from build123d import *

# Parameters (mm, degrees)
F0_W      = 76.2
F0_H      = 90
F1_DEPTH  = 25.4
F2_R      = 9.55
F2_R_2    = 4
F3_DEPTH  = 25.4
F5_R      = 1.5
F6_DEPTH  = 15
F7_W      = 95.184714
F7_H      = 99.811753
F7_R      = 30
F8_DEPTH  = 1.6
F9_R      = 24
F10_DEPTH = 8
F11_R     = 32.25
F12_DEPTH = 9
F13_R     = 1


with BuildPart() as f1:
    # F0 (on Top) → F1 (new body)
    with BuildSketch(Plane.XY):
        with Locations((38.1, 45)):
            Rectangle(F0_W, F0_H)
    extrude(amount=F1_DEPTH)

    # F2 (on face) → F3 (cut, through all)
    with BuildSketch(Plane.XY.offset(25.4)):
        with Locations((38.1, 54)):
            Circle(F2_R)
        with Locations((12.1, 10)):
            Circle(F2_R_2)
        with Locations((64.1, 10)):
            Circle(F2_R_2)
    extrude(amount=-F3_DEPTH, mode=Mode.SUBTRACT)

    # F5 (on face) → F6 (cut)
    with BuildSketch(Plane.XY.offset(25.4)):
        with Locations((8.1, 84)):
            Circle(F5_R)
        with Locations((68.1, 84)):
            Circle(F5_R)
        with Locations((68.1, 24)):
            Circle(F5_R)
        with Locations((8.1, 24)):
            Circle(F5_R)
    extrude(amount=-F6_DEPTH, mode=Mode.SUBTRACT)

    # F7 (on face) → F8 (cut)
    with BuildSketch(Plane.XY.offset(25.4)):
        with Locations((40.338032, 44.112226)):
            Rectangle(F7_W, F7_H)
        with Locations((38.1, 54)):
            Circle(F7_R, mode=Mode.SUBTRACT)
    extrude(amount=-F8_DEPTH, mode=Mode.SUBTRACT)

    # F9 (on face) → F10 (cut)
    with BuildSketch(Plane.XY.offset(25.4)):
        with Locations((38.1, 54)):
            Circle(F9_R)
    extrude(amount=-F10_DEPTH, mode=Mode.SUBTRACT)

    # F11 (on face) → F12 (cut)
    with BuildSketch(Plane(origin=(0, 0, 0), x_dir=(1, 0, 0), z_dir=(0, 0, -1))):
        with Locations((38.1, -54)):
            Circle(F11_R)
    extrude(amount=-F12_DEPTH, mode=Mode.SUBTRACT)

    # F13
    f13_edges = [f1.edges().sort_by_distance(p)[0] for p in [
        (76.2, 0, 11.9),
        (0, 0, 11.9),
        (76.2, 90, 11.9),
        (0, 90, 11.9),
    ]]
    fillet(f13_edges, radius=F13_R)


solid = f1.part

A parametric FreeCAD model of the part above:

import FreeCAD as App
import Part
import Sketcher
from FreeCAD import Vector
Q = App.Units.Quantity


def edges_at(feature, points):
    """Names of the edges that pass closest to the given points."""
    edges = feature.Shape.Edges
    near = lambda p: min(range(len(edges)), key=lambda i: edges[i].distToShape(Part.Vertex(*p))[0])
    return sorted({f"Edge{near(p) + 1}" for p in points})


def add_polygon(sketch, points):
    """Adds a closed chain of lines whose ends are joined by coincident constraints."""
    first, n = sketch.GeometryCount, len(points)
    for a, b in zip(points, points[1:] + points[:1]):
        sketch.addGeometry(Part.LineSegment(App.Vector(*a, 0), App.Vector(*b, 0)), False)
    for i in range(n):
        sketch.addConstraint(Sketcher.Constraint("Coincident", first + i, 2, first + (i + 1) % n, 1))

doc = App.newDocument("Part")
body = doc.addObject("PartDesign::Body", "Body")

sketch1 = doc.addObject("Sketcher::SketchObject", "Sketch")
body.addObject(sketch1)
sketch1.AttachmentSupport = (doc.XY_Plane, [""])
sketch1.MapMode = "FlatFace"
add_polygon(sketch1, [(0, 90), (0, 0), (76, 0), (76, 90)])
sketch1.addConstraint([
    Sketcher.Constraint("Vertical", 0),
    Sketcher.Constraint("Horizontal", 1),
    Sketcher.Constraint("Vertical", 2),
    Sketcher.Constraint("Horizontal", 3),
    Sketcher.Constraint("Coincident", 0, 2, -1, 1),
    Sketcher.Constraint("DistanceY", 0, 2, 0, 1, Q("90 mm")),
    Sketcher.Constraint("DistanceX", 1, 1, 1, 2, Q("76.2 mm")),
])
pad1 = doc.addObject("PartDesign::Pad", "Pad")
body.addObject(pad1)
pad1.Profile = sketch1
pad1.Length = 25.4

sketch2 = doc.addObject("Sketcher::SketchObject", "Sketch001")
body.addObject(sketch2)
sketch2.AttachmentSupport = (doc.XY_Plane, [""])
sketch2.MapMode = "FlatFace"
sketch2.AttachmentOffset = App.Placement(Vector(0, 0, 25.4), App.Rotation())
sketch2.addGeometry([
    Part.Circle(Vector(38.1, 54, 0), Vector(0, 0, 1), 9.6),
    Part.Circle(Vector(12.1, 10, 0), Vector(0, 0, 1), 4),
    Part.Circle(Vector(64.1, 10, 0), Vector(0, 0, 1), 4),
], False)
sketch2.addConstraint([
    Sketcher.Constraint("Equal", 1, 2),
    Sketcher.Constraint("Horizontal", 1, 3, 2, 3),
    Sketcher.Constraint("Diameter", 1, Q("8 mm")),
    Sketcher.Constraint("Diameter", 0, Q("19.1 mm")),
    Sketcher.Constraint("DistanceY", -1, 1, 0, 3, Q("54 mm")),
    Sketcher.Constraint("DistanceY", -1, 1, 1, 3, Q("10 mm")),
    Sketcher.Constraint("DistanceX", 1, 3, 0, 3, Q("26 mm")),
    Sketcher.Constraint("DistanceX", 0, 3, 2, 3, Q("26 mm")),
    Sketcher.Constraint("DistanceX", -1, 1, 0, 3, Q("38.1 mm")),
])
pocket1 = doc.addObject("PartDesign::Pocket", "Pocket")
body.addObject(pocket1)
pocket1.Profile = sketch2
pocket1.Type = "ThroughAll"

sketch3 = doc.addObject("Sketcher::SketchObject", "Sketch002")
body.addObject(sketch3)
sketch3.AttachmentSupport = (doc.XY_Plane, [""])
sketch3.MapMode = "FlatFace"
sketch3.AttachmentOffset = App.Placement(Vector(0, 0, 25.4), App.Rotation())
sketch3.addGeometry([
    Part.Circle(Vector(8.1, 84, 0), Vector(0, 0, 1), 1.5),
    Part.Circle(Vector(68.1, 84, 0), Vector(0, 0, 1), 1.5),
    Part.Circle(Vector(68.1, 24, 0), Vector(0, 0, 1), 1.5),
    Part.Circle(Vector(8.1, 24, 0), Vector(0, 0, 1), 1.5),
], False)
sketch3.addConstraint([
    Sketcher.Constraint("Equal", 0, 1),
    Sketcher.Constraint("Equal", 1, 2),
    Sketcher.Constraint("Equal", 2, 3),
    Sketcher.Constraint("Horizontal", 0, 3, 1, 3),
    Sketcher.Constraint("Horizontal", 2, 3, 3, 3),
    Sketcher.Constraint("Vertical", 1, 3, 2, 3),
    Sketcher.Constraint("Vertical", 0, 3, 3, 3),
    Sketcher.Constraint("Diameter", 0, Q("3 mm")),
    Sketcher.Constraint("DistanceY", -1, 1, 0, 3, Q("84 mm")),
    Sketcher.Constraint("DistanceY", -1, 1, 2, 3, Q("24 mm")),
    Sketcher.Constraint("DistanceX", 0, 3, 1, 3, Q("60 mm")),
    Sketcher.Constraint("DistanceX", -1, 1, 0, 3, Q("8.1 mm")),
])
pocket2 = doc.addObject("PartDesign::Pocket", "Pocket001")
body.addObject(pocket2)
pocket2.Profile = sketch3
pocket2.Length = 15

sketch4 = doc.addObject("Sketcher::SketchObject", "Sketch003")
body.addObject(sketch4)
sketch4.AttachmentSupport = (doc.XY_Plane, [""])
sketch4.MapMode = "FlatFace"
sketch4.AttachmentOffset = App.Placement(Vector(0, 0, 25.4), App.Rotation())
add_polygon(sketch4, [(-7, 94), (-7, -6), (88, -6), (88, 94)])
sketch4.addGeometry(Part.Circle(Vector(38, 54, 0), Vector(0, 0, 1), 30), False)
sketch4.addConstraint([
    Sketcher.Constraint("Vertical", 0),
    Sketcher.Constraint("Horizontal", 1),
    Sketcher.Constraint("Vertical", 2),
    Sketcher.Constraint("Horizontal", 3),
    Sketcher.Constraint("Diameter", 4, Q("60 mm")),
    Sketcher.Constraint("DistanceY", -1, 1, 4, 3, Q("54 mm")),
    Sketcher.Constraint("DistanceX", -1, 1, 4, 3, Q("38.1 mm")),
    Sketcher.Constraint("DistanceX", 1, 1, 1, 2, Q("95.184714 mm")),
    Sketcher.Constraint("DistanceY", 0, 2, 0, 1, Q("99.811753 mm")),
    Sketcher.Constraint("DistanceY", 0, 2, -1, 1, Q("5.793651 mm")),
    Sketcher.Constraint("DistanceX", -1, 1, 1, 2, Q("87.930389 mm")),
])
pocket3 = doc.addObject("PartDesign::Pocket", "Pocket002")
body.addObject(pocket3)
pocket3.Profile = sketch4
pocket3.Length = 1.6

sketch5 = doc.addObject("Sketcher::SketchObject", "Sketch004")
body.addObject(sketch5)
sketch5.AttachmentSupport = (doc.XY_Plane, [""])
sketch5.MapMode = "FlatFace"
sketch5.AttachmentOffset = App.Placement(Vector(0, 0, 25.4), App.Rotation())
sketch5.addGeometry(Part.Circle(Vector(38, 54, 0), Vector(0, 0, 1), 24), False)
sketch5.addConstraint([
    Sketcher.Constraint("Diameter", 0, Q("48 mm")),
    Sketcher.Constraint("DistanceY", -1, 1, 0, 3, Q("54 mm")),
    Sketcher.Constraint("DistanceX", -1, 1, 0, 3, Q("38.1 mm")),
])
pocket4 = doc.addObject("PartDesign::Pocket", "Pocket003")
body.addObject(pocket4)
pocket4.Profile = sketch5
pocket4.Length = 8

sketch6 = doc.addObject("Sketcher::SketchObject", "Sketch005")
body.addObject(sketch6)
sketch6.AttachmentSupport = (doc.XY_Plane, [""])
sketch6.MapMode = "FlatFace"
sketch6.addGeometry(Part.Circle(Vector(38, 54, 0), Vector(0, 0, 1), 32), False)
sketch6.addConstraint([
    Sketcher.Constraint("Diameter", 0, Q("64.5 mm")),
    Sketcher.Constraint("DistanceY", -1, 1, 0, 3, Q("54 mm")),
    Sketcher.Constraint("DistanceX", -1, 1, 0, 3, Q("38.1 mm")),
])
pocket5 = doc.addObject("PartDesign::Pocket", "Pocket004")
body.addObject(pocket5)
pocket5.Profile = sketch6
pocket5.Length = 9
pocket5.Reversed = True
doc.recompute()

fillet = doc.addObject("PartDesign::Fillet", "Fillet")
body.addObject(fillet)
fillet.Base = (pocket5, edges_at(pocket5, [
    (76.2, 0, 11.9),
    (0, 0, 11.9),
    (76.2, 90, 11.9),
    (0, 90, 11.9),
]))
fillet.Radius = 1

doc.recompute()
